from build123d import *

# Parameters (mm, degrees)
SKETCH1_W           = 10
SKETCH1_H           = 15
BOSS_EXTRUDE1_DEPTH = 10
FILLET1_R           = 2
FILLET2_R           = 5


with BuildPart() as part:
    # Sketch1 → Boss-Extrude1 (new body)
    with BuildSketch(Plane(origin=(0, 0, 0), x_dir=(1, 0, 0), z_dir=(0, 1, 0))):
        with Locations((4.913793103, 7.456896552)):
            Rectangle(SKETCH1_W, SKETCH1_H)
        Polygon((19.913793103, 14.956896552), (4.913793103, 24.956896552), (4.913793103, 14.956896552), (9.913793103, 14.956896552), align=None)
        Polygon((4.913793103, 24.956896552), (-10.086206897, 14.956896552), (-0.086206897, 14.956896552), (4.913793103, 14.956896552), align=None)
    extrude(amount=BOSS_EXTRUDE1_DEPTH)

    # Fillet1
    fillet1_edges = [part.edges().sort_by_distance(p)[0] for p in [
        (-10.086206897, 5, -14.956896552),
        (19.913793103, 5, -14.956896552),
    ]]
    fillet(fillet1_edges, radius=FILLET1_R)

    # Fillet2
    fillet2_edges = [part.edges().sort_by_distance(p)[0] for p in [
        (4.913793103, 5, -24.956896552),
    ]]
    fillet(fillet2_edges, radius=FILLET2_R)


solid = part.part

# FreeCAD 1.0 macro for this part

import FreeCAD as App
import Part
import Sketcher

V = App.Vector
Q = App.Units.Quantity


def edges_at(feature, points):
    """Names of the edges that pass closest to the given points."""
    edges = feature.Shape.Edges
    near = lambda p: min(range(len(edges)), key=lambda i: edges[i].distToShape(Part.Vertex(*p))[0])
    return sorted({f"Edge{near(p) + 1}" for p in points})


def add_polygon(sketch, points):
    """Adds a closed chain of lines whose ends are joined by coincident constraints."""
    first, n = sketch.GeometryCount, len(points)
    for a, b in zip(points, points[1:] + points[:1]):
        sketch.addGeometry(Part.LineSegment(App.Vector(*a, 0), App.Vector(*b, 0)), False)
    for i in range(n):
        sketch.addConstraint(Sketcher.Constraint("Coincident", first + i, 2, first + (i + 1) % n, 1))

doc = App.newDocument("Part")
body = doc.addObject("PartDesign::Body", "Body")

# Sketch on XZ plane
sketch1 = body.newObject("Sketcher::SketchObject", "Sketch")
sketch1.AttachmentSupport = (doc.getObject("XZ_Plane"), [""])
sketch1.MapMode = "FlatFace"
add_polygon(sketch1, [(0, -15), (0, 0), (10, 0), (10, -15), (20, -15), (5, -25), (-10, -15)])  # lines 0-6
sketch1.addConstraint(Sketcher.Constraint("Vertical", 0))
sketch1.addConstraint(Sketcher.Constraint("Horizontal", 1))
sketch1.addConstraint(Sketcher.Constraint("Vertical", 2))
sketch1.addConstraint(Sketcher.Constraint("Horizontal", 3))
sketch1.addConstraint(Sketcher.Constraint("Horizontal", 6))
sketch1.addConstraint(Sketcher.Constraint("Horizontal", 3, 2, 5, 2))
sketch1.addConstraint(Sketcher.Constraint("Equal", 1, 3))
sketch1.addConstraint(Sketcher.Constraint("Equal", 3, 6))
sketch1.addConstraint(Sketcher.Constraint("Equal", 4, 5))
sketch1.addConstraint(Sketcher.Constraint("DistanceX", 1, 1, 1, 2, Q("10 mm")))
sketch1.addConstraint(Sketcher.Constraint("DistanceY", 0, 1, 0, 2, Q("15 mm")))
sketch1.addConstraint(Sketcher.Constraint("DistanceY", 4, 2, 2, 2, Q("10 mm")))
sketch1.addConstraint(Sketcher.Constraint("DistanceX", 0, 2, -1, 1, Q("0.086207 mm")))
sketch1.addConstraint(Sketcher.Constraint("DistanceY", -1, 1, 0, 2, Q("0.043103 mm")))
pad1 = body.newObject("PartDesign::Pad", "Pad")
pad1.Profile = sketch1
pad1.Length = 10
pad1.Reversed = True
doc.recompute()

fillet = body.newObject("PartDesign::Fillet", "Fillet")
fillet.Base = (pad1, edges_at(pad1, [(-10.086, 5, -14.957), (19.914, 5, -14.957)]))
fillet.Radius = 2
doc.recompute()

fillet2 = body.newObject("PartDesign::Fillet", "Fillet001")
fillet2.Base = (fillet, edges_at(fillet, [(4.914, 5, -24.957)]))
fillet2.Radius = 5

doc.recompute()
